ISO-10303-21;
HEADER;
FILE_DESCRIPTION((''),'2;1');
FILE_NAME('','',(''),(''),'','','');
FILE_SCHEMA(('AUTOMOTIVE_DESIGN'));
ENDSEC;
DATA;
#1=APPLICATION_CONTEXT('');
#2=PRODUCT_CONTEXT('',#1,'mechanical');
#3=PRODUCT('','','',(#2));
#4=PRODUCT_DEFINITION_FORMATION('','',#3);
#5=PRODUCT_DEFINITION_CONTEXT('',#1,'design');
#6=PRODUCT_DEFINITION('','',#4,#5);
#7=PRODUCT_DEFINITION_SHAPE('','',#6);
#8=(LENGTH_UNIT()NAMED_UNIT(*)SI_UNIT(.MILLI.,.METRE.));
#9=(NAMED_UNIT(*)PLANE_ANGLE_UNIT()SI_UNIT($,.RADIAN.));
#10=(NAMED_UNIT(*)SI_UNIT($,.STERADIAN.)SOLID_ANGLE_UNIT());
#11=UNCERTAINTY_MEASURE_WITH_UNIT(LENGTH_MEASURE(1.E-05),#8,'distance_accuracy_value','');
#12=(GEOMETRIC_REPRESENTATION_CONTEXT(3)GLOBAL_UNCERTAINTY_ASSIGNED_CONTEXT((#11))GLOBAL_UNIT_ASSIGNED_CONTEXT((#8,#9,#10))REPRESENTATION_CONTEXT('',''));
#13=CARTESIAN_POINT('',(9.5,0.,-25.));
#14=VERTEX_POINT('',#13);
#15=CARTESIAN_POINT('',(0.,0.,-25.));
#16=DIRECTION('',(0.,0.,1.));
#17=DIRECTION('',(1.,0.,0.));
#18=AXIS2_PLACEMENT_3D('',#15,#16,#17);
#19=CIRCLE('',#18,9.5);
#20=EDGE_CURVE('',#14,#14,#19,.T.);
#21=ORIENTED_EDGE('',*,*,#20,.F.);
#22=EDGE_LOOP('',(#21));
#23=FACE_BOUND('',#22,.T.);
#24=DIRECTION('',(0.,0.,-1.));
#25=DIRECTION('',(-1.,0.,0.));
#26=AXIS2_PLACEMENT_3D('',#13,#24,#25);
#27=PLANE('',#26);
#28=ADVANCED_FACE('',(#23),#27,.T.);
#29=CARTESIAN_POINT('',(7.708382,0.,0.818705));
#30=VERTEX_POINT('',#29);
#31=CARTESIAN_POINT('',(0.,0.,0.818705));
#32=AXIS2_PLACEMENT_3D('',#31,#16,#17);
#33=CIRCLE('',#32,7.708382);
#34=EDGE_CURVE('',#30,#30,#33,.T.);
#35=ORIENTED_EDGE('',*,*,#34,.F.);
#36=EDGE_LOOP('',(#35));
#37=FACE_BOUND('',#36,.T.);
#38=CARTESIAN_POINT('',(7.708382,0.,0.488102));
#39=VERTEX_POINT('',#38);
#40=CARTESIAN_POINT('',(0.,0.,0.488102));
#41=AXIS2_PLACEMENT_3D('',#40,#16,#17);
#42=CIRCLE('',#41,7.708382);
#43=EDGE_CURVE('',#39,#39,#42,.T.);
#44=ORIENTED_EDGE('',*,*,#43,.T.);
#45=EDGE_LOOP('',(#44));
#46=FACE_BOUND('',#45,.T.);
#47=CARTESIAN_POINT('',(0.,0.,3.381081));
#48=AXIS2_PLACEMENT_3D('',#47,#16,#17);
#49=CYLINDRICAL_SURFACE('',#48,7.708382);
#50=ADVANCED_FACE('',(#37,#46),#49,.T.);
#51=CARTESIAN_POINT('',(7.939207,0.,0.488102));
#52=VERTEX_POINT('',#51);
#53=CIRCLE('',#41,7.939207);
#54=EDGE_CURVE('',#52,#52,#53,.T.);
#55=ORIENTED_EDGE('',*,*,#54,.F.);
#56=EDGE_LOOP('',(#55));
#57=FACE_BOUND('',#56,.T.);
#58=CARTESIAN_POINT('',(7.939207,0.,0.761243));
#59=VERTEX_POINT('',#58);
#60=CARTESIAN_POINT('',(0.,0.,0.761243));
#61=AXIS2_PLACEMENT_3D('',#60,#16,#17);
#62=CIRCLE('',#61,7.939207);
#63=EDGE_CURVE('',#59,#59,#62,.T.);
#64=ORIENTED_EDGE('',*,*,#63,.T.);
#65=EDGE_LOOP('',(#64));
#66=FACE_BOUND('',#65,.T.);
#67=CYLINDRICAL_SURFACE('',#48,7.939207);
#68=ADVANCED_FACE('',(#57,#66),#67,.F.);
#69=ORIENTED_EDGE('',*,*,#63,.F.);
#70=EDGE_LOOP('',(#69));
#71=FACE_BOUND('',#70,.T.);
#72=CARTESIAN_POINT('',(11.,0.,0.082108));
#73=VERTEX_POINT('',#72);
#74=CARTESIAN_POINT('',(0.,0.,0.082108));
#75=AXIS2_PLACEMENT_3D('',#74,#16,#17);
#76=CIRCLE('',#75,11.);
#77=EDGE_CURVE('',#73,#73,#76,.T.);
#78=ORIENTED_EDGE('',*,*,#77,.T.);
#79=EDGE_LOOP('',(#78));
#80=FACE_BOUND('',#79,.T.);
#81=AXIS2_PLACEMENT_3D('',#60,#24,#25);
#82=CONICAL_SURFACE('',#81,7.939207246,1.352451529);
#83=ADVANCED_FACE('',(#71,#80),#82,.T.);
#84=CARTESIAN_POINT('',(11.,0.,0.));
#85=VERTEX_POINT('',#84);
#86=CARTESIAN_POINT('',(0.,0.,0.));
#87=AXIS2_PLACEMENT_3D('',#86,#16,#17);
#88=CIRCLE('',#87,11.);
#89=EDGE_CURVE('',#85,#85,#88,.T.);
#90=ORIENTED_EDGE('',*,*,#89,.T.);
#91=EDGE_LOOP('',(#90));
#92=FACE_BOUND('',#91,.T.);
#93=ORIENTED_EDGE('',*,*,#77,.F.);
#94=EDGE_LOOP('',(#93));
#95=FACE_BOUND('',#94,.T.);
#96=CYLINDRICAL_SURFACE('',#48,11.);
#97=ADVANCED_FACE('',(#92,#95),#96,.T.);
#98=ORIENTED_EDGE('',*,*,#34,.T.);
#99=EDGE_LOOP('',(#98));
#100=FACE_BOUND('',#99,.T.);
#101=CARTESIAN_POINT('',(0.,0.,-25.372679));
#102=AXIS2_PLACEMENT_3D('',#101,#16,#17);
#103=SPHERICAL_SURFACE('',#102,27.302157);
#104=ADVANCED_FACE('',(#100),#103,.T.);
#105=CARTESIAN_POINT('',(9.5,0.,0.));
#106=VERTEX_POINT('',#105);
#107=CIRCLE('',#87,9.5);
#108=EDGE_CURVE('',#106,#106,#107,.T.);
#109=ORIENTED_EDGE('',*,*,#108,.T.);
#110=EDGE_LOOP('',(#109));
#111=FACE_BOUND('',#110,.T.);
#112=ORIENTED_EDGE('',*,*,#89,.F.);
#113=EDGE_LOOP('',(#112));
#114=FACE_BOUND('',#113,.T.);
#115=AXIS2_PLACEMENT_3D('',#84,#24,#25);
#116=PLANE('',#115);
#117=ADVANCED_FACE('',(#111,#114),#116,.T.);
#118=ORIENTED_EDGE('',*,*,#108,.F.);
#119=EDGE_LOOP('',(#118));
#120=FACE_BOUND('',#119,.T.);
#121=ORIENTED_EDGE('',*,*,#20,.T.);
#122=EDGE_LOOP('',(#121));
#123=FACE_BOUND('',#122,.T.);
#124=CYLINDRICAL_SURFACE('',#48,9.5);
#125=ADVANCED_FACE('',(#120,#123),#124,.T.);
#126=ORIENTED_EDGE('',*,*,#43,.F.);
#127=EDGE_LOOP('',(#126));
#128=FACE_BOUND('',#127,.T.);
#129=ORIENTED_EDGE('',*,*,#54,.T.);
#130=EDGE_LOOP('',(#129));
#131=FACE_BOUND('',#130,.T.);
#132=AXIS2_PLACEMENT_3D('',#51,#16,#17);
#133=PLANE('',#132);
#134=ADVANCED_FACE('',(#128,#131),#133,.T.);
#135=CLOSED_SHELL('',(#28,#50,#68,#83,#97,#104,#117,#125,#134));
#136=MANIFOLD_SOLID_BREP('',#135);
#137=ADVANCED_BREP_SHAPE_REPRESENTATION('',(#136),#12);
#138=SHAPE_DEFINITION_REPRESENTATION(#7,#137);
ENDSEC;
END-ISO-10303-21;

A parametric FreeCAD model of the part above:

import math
import FreeCAD as App
import Part
import Sketcher

V = App.Vector

doc = App.newDocument("Part")
body = doc.addObject("PartDesign::Body", "Body")

sketch1 = doc.addObject("Sketcher::SketchObject", "Sketch")
body.addObject(sketch1)
sketch1.AttachmentSupport = (doc.XZ_Plane, [""])
sketch1.MapMode = "FlatFace"
sketch1.addGeometry(Part.LineSegment(V(9.5, 0, 0), V(9.5, -25, 0)), False)
sketch1.addGeometry(Part.LineSegment(V(9.5, -25, 0), V(0, -25, 0)), False)
sketch1.addGeometry(Part.LineSegment(V(0, -25, 0), V(0, 1.929478, 0)), False)
sketch1.addGeometry(Part.ArcOfCircle(Part.Circle(V(0, -25.372679, 0), V(0, 0, 1), 27.302157), math.radians(73.600326), math.radians(90)), False)
sketch1.addGeometry(Part.LineSegment(V(7.708382, 0.818705, 0), V(7.708382, 0.488102, 0)), False)
sketch1.addGeometry(Part.LineSegment(V(7.708382, 0.488102, 0), V(7.939207, 0.488102, 0)), False)
sketch1.addGeometry(Part.LineSegment(V(7.939207, 0.488102, 0), V(7.939207, 0.761243, 0)), False)
sketch1.addGeometry(Part.LineSegment(V(7.939207, 0.761243, 0), V(11, 0.082108, 0)), False)
sketch1.addGeometry(Part.LineSegment(V(11, 0.082108, 0), V(11, 0, 0)), False)
sketch1.addGeometry(Part.LineSegment(V(11, 0, 0), V(9.5, 0, 0)), False)
sketch1.addConstraint(Sketcher.Constraint("Coincident", 0, 2, 1, 1))
sketch1.addConstraint(Sketcher.Constraint("Coincident", 1, 2, 2, 1))
sketch1.addConstraint(Sketcher.Constraint("Coincident", 2, 2, 3, 2))
sketch1.addConstraint(Sketcher.Constraint("Coincident", 3, 1, 4, 1))
sketch1.addConstraint(Sketcher.Constraint("Coincident", 4, 2, 5, 1))
sketch1.addConstraint(Sketcher.Constraint("Coincident", 5, 2, 6, 1))
sketch1.addConstraint(Sketcher.Constraint("Coincident", 6, 2, 7, 1))
sketch1.addConstraint(Sketcher.Constraint("Coincident", 7, 2, 8, 1))
sketch1.addConstraint(Sketcher.Constraint("Coincident", 8, 2, 9, 1))
sketch1.addConstraint(Sketcher.Constraint("Coincident", 9, 2, 0, 1))
sketch1.addConstraint(Sketcher.Constraint("Vertical", 0))
sketch1.addConstraint(Sketcher.Constraint("Horizontal", 1))
sketch1.addConstraint(Sketcher.Constraint("Vertical", 2))
sketch1.addConstraint(Sketcher.Constraint("Vertical", 4))
sketch1.addConstraint(Sketcher.Constraint("Horizontal", 5))
sketch1.addConstraint(Sketcher.Constraint("Vertical", 6))
sketch1.addConstraint(Sketcher.Constraint("Vertical", 8))
sketch1.addConstraint(Sketcher.Constraint("Horizontal", 9))
sketch1.addConstraint(Sketcher.Constraint("PointOnObject", 3, 3, -2))
sketch1.addConstraint(Sketcher.Constraint("PointOnObject", 1, 2, -2))
sketch1.addConstraint(Sketcher.Constraint("PointOnObject", 8, 2, -1))
sketch1.addConstraint(Sketcher.Constraint("DistanceY", 0, 2, 0, 1, 25.0))
sketch1.addConstraint(Sketcher.Constraint("DistanceX", 1, 2, 1, 1, 9.5))
sketch1.addConstraint(Sketcher.Constraint("DistanceX", 9, 2, 9, 1, 1.5))
sketch1.addConstraint(Sketcher.Constraint("Radius", 3, 27.302157))
sketch1.addConstraint(Sketcher.Constraint("DistanceY", 6, 1, 6, 2, 0.273142))
sketch1.addConstraint(Sketcher.Constraint("DistanceY", 8, 2, 8, 1, 0.082108))
sketch1.addConstraint(Sketcher.Constraint("DistanceY", -1, 1, 4, 2, 0.488102))
sketch1.addConstraint(Sketcher.Constraint("Distance", 7, 3.135232))
sketch1.addConstraint(Sketcher.Constraint("DistanceX", 5, 1, 5, 2, 0.230826))
sketch1.addConstraint(Sketcher.Constraint("DistanceY", 2, 1, 2, 2, 26.929478))
revolution = doc.addObject("PartDesign::Revolution", "Revolution")
body.addObject(revolution)
revolution.Profile = sketch1
revolution.ReferenceAxis = (sketch1, ["V_Axis"])
revolution.Angle = 360

doc.recompute()
